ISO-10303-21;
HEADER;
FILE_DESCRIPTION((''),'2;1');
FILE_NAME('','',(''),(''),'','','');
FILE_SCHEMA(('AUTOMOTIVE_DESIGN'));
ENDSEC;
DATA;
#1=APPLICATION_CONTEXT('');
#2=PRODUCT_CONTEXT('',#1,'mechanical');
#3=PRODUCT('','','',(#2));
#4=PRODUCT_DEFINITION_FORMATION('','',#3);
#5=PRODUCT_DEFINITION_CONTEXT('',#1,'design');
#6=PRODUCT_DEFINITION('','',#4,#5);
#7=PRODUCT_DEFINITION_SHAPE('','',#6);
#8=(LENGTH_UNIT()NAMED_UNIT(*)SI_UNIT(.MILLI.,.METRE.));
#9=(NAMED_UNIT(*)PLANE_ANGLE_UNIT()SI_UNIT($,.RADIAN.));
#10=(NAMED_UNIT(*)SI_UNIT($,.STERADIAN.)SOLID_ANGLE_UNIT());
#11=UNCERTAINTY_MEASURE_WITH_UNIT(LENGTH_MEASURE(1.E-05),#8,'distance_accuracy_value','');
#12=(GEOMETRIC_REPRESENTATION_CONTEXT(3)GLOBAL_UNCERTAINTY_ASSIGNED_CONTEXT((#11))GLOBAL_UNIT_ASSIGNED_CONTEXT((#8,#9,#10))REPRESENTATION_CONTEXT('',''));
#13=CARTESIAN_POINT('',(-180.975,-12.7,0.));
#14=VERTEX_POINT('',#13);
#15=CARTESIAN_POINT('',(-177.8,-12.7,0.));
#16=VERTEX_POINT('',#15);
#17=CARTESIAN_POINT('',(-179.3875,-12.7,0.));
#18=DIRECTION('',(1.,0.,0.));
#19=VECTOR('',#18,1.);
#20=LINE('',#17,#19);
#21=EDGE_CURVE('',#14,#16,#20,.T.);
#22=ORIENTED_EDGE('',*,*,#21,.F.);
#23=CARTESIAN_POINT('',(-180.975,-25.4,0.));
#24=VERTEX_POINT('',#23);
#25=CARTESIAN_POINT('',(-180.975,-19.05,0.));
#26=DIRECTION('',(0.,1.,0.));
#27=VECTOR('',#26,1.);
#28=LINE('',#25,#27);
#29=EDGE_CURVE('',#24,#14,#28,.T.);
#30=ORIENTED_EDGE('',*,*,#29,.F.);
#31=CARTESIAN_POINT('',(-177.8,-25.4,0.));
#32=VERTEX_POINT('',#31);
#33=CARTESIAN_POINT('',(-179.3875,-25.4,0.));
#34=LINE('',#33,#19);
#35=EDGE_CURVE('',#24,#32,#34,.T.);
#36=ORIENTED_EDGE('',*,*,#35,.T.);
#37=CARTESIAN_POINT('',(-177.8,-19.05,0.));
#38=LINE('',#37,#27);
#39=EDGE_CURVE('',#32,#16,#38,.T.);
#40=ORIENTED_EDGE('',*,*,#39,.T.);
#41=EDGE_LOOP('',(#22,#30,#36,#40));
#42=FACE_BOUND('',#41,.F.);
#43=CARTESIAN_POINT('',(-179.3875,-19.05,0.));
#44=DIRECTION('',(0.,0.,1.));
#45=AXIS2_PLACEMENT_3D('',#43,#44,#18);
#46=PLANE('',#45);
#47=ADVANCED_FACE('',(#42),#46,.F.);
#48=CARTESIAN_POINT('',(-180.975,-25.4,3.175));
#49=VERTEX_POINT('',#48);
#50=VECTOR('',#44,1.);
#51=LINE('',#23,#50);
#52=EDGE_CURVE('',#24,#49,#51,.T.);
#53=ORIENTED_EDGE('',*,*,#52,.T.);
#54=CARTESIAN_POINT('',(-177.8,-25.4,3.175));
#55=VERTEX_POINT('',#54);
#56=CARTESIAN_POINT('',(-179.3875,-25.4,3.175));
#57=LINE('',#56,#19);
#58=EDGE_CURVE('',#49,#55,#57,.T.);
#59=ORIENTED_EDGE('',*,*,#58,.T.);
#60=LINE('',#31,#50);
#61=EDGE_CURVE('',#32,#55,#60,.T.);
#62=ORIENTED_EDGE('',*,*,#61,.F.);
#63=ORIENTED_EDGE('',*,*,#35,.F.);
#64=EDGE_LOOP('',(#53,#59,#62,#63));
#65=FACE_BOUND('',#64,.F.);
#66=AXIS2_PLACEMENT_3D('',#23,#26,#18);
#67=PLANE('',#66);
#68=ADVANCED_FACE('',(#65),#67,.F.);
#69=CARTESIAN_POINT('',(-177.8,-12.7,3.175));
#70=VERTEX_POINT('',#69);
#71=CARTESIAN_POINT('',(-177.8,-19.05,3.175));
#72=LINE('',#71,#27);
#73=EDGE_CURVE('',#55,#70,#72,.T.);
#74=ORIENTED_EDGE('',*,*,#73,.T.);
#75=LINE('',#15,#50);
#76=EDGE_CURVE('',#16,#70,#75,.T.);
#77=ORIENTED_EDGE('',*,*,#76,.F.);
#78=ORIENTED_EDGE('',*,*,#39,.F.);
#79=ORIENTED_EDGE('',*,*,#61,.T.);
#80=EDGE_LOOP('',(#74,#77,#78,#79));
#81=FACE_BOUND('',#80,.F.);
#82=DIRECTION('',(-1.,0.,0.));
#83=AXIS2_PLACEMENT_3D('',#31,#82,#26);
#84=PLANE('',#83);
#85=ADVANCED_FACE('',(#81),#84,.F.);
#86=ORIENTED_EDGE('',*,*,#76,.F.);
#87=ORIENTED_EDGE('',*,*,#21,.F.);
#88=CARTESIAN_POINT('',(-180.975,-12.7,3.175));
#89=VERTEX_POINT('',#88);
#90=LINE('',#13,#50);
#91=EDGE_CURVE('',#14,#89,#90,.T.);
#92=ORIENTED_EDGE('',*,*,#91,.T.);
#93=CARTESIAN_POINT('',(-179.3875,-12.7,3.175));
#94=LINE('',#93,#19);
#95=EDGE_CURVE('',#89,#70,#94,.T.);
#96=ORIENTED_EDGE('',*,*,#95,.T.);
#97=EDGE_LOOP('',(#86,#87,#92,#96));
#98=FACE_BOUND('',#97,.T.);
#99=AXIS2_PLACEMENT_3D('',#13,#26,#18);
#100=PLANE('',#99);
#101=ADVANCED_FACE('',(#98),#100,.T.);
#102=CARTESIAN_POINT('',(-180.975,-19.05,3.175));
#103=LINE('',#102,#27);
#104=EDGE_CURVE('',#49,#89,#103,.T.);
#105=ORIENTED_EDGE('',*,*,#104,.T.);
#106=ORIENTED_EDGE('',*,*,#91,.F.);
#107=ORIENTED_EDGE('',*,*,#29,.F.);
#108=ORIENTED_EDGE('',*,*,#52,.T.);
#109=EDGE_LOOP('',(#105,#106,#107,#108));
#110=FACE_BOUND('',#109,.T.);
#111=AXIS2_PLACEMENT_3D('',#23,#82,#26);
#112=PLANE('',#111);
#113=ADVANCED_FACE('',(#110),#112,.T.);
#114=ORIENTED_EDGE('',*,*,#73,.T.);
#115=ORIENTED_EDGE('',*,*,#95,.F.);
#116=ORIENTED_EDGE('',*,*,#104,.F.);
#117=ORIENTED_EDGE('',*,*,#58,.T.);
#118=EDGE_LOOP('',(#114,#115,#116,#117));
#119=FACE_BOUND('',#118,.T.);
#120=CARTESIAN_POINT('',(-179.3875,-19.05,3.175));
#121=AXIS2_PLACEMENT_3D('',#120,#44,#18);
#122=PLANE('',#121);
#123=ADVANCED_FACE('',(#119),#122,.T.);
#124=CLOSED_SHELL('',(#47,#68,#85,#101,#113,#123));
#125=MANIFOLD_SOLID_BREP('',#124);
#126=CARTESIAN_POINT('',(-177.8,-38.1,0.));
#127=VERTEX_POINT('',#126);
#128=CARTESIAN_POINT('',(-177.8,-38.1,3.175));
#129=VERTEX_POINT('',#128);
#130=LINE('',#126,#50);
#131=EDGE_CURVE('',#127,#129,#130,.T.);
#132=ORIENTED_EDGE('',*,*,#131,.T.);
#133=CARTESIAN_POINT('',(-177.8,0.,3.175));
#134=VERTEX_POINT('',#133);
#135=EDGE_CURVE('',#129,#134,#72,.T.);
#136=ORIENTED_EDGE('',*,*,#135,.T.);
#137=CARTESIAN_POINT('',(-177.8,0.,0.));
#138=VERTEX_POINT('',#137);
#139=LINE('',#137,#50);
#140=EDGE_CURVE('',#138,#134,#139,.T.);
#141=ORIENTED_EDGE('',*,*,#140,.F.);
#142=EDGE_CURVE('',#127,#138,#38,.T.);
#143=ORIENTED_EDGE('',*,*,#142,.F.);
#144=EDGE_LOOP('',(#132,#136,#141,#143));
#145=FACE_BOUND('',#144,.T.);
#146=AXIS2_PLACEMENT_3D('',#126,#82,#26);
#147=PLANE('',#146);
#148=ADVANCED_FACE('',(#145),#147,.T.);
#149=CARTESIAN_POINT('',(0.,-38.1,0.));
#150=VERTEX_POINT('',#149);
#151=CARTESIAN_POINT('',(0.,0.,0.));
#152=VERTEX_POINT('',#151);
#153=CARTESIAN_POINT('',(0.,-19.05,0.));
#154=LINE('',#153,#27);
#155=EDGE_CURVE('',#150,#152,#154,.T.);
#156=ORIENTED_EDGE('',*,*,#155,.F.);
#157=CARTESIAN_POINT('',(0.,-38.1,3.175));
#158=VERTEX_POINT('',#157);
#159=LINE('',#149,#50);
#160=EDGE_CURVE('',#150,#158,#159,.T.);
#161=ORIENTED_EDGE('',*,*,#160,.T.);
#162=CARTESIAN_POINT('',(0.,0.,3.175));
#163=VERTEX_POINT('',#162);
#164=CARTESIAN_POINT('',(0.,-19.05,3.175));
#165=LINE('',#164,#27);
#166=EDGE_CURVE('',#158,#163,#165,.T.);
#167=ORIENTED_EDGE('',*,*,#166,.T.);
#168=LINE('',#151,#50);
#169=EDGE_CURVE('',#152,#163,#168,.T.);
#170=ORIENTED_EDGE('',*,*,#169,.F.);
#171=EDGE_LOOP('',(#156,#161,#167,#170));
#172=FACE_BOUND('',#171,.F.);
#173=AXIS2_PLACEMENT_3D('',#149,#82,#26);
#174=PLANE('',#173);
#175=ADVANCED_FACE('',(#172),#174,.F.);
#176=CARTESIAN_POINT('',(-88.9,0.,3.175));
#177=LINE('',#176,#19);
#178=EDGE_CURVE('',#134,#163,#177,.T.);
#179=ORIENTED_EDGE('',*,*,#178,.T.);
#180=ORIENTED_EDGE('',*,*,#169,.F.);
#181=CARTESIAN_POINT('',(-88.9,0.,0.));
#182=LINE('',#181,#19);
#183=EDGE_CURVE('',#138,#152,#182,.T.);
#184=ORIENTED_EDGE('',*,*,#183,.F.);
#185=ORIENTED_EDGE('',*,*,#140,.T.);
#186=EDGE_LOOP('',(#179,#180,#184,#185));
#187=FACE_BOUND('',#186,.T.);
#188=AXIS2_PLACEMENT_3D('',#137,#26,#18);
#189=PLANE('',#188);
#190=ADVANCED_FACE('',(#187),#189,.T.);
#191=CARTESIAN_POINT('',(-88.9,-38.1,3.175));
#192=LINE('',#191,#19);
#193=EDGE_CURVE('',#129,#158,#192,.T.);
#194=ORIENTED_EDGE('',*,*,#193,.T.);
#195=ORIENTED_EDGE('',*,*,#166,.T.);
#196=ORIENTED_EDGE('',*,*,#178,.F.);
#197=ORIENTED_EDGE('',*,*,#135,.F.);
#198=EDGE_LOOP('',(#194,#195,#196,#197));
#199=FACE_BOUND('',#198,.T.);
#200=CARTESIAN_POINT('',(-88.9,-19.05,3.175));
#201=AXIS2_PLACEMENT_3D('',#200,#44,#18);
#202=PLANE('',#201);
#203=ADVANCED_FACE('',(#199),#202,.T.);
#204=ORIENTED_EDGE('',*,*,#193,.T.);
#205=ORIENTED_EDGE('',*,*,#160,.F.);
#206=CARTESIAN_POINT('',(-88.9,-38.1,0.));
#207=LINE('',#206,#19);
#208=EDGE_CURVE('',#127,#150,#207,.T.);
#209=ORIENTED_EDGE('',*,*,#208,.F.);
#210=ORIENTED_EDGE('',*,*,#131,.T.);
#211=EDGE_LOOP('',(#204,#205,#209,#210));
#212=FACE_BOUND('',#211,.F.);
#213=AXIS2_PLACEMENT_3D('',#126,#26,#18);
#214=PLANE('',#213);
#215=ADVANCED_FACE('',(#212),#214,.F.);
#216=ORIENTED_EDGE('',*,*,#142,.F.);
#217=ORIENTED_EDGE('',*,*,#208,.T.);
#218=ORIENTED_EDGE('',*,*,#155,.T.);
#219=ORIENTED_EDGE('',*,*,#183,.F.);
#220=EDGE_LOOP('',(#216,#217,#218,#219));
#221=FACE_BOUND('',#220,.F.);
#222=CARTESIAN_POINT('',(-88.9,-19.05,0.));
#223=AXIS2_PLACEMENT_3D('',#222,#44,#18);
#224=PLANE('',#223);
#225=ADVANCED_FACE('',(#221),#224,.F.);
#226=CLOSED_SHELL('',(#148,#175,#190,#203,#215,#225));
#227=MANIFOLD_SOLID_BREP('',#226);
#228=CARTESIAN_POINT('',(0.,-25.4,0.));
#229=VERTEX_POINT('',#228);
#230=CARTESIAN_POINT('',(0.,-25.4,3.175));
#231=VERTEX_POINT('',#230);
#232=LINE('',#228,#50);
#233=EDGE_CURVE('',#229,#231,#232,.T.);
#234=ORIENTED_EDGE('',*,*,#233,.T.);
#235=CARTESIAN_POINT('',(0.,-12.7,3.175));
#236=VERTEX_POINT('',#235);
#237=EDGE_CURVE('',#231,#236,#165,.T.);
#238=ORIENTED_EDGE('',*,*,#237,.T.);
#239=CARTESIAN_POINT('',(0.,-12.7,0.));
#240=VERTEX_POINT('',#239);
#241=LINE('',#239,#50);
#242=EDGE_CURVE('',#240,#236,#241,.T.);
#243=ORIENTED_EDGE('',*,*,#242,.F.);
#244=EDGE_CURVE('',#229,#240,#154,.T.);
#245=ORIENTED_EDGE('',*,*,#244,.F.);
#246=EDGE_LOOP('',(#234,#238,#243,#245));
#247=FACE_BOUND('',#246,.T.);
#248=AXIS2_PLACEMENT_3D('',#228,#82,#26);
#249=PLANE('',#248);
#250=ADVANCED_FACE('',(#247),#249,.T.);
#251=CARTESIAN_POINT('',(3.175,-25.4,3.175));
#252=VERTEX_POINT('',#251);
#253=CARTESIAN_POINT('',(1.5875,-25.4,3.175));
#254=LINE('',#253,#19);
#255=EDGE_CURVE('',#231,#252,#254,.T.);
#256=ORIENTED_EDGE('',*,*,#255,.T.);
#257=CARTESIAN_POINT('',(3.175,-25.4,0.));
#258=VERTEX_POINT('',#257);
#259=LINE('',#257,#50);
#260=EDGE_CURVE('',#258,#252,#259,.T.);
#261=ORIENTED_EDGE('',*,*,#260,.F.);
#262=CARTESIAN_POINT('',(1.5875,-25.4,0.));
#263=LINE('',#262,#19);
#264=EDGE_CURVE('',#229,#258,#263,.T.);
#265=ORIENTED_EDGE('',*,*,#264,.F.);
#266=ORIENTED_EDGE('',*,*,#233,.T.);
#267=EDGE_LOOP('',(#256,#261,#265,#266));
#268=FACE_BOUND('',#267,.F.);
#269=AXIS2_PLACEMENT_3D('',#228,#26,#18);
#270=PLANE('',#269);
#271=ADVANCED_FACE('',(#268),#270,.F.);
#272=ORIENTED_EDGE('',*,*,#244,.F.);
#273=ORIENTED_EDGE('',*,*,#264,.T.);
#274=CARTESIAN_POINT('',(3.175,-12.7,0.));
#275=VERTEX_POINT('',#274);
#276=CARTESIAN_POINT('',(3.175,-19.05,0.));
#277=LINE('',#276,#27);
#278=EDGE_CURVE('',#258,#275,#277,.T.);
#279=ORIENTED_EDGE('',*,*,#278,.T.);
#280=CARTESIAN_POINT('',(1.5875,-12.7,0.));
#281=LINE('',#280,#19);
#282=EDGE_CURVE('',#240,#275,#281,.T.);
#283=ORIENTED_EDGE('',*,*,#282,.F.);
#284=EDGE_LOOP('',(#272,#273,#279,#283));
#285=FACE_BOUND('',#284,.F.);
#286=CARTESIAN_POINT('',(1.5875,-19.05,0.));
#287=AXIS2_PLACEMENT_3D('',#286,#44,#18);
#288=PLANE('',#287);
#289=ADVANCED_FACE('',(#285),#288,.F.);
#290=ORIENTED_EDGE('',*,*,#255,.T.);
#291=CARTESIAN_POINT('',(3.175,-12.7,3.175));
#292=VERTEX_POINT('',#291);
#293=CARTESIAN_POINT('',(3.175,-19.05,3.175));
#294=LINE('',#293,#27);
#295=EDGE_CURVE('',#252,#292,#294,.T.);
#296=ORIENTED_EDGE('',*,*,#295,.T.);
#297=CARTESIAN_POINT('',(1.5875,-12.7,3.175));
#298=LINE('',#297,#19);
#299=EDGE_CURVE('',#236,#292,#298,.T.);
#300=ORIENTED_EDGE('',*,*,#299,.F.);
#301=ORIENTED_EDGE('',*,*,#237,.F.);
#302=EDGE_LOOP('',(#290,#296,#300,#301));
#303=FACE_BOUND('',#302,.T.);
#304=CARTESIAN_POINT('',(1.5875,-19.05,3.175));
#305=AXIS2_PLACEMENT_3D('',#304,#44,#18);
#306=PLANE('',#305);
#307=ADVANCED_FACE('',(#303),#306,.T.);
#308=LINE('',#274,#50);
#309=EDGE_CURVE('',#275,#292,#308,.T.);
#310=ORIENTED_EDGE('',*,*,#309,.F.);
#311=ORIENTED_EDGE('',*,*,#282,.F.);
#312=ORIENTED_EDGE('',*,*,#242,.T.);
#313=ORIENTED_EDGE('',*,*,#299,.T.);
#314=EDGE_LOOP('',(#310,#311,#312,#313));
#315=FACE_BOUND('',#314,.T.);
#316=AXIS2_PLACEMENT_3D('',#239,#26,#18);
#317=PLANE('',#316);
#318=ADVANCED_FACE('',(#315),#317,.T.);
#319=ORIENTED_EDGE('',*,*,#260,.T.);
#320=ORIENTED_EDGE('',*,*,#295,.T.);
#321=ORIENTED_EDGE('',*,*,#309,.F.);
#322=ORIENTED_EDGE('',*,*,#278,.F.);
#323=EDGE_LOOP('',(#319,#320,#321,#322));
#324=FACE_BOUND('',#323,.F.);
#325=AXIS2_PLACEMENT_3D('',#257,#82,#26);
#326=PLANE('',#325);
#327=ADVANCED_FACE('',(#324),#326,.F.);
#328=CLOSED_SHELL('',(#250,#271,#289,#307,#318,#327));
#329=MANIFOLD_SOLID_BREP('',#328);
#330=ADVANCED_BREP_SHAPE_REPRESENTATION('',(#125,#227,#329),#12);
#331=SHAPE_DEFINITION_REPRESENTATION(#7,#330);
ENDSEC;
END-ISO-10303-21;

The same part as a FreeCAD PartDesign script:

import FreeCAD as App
import Part
import Sketcher
from FreeCAD import Vector
Q = App.Units.Quantity


def add_polygon(sketch, points):
    """Adds a closed chain of lines whose ends are joined by coincident constraints."""
    first, n = sketch.GeometryCount, len(points)
    for a, b in zip(points, points[1:] + points[:1]):
        sketch.addGeometry(Part.LineSegment(App.Vector(*a, 0), App.Vector(*b, 0)), False)
    for i in range(n):
        sketch.addConstraint(Sketcher.Constraint("Coincident", first + i, 2, first + (i + 1) % n, 1))

doc = App.newDocument("Part")
body = doc.addObject("PartDesign::Body", "Body")

# Sketch on XY plane
sketch1 = body.newObject("Sketcher::SketchObject", "Sketch")
sketch1.AttachmentSupport = (doc.getObject("XY_Plane"), [""])
sketch1.MapMode = "FlatFace"
add_polygon(sketch1, [(-178, 0), (-178, -38), (0, -38), (0, 0)])  # lines 0-3
sketch1.addConstraint([
    Sketcher.Constraint("Vertical", 0),
    Sketcher.Constraint("Horizontal", 1),
    Sketcher.Constraint("Vertical", 2),
    Sketcher.Constraint("Horizontal", 3),
    Sketcher.Constraint("Coincident", 2, 2, -1, 1),
    Sketcher.Constraint("DistanceX", 1, 1, 1, 2, Q("7 in")),
    Sketcher.Constraint("DistanceY", 0, 2, 0, 1, Q("1.5 in")),
])
pad1 = body.newObject("PartDesign::Pad", "Pad")
pad1.Profile = sketch1
pad1.Length = Q("0.125 in")
body2 = doc.addObject("PartDesign::Body", "Body001")

# Sketch on XY plane
sketch2 = body2.newObject("Sketcher::SketchObject", "Sketch001")
sketch2.AttachmentSupport = (doc.getObject("XY_Plane001"), [""])
sketch2.MapMode = "FlatFace"
add_polygon(sketch2, [(0, -12.7), (0, -25.4), (3.2, -25.4), (3.2, -12.7)])  # lines 0-3
sketch2.addConstraint([
    Sketcher.Constraint("Vertical", 0),
    Sketcher.Constraint("Horizontal", 1),
    Sketcher.Constraint("Vertical", 2),
    Sketcher.Constraint("Horizontal", 3),
    Sketcher.Constraint("PointOnObject", 0, 2, -2),
    Sketcher.Constraint("DistanceY", 0, 2, 0, 1, Q("0.5 in")),
    Sketcher.Constraint("DistanceY", 0, 2, -1, 1, Q("1 in")),
    Sketcher.Constraint("DistanceX", 1, 1, 1, 2, Q("0.125 in")),
])
pad2 = body2.newObject("PartDesign::Pad", "Pad001")
pad2.Profile = sketch2
pad2.Length = Q("0.125 in")
body3 = doc.addObject("PartDesign::Body", "Body002")

# Sketch on XY plane
sketch3 = body3.newObject("Sketcher::SketchObject", "Sketch002")
sketch3.AttachmentSupport = (doc.getObject("XY_Plane002"), [""])
sketch3.MapMode = "FlatFace"
add_polygon(sketch3, [(-181, -12.7), (-181, -25.4), (-177.8, -25.4), (-177.8, -12.7)])  # lines 0-3
sketch3.addConstraint([
    Sketcher.Constraint("Vertical", 0),
    Sketcher.Constraint("Horizontal", 1),
    Sketcher.Constraint("Vertical", 2),
    Sketcher.Constraint("Horizontal", 3),
    Sketcher.Constraint("DistanceY", 0, 2, 0, 1, Q("0.5 in")),
    Sketcher.Constraint("DistanceY", 0, 2, -1, 1, Q("1 in")),
    Sketcher.Constraint("DistanceX", 1, 2, -1, 1, Q("7 in")),
    Sketcher.Constraint("DistanceX", 1, 1, 1, 2, Q("0.125 in")),
])
pad3 = body3.newObject("PartDesign::Pad", "Pad002")
pad3.Profile = sketch3
pad3.Length = Q("0.125 in")

doc.recompute()
